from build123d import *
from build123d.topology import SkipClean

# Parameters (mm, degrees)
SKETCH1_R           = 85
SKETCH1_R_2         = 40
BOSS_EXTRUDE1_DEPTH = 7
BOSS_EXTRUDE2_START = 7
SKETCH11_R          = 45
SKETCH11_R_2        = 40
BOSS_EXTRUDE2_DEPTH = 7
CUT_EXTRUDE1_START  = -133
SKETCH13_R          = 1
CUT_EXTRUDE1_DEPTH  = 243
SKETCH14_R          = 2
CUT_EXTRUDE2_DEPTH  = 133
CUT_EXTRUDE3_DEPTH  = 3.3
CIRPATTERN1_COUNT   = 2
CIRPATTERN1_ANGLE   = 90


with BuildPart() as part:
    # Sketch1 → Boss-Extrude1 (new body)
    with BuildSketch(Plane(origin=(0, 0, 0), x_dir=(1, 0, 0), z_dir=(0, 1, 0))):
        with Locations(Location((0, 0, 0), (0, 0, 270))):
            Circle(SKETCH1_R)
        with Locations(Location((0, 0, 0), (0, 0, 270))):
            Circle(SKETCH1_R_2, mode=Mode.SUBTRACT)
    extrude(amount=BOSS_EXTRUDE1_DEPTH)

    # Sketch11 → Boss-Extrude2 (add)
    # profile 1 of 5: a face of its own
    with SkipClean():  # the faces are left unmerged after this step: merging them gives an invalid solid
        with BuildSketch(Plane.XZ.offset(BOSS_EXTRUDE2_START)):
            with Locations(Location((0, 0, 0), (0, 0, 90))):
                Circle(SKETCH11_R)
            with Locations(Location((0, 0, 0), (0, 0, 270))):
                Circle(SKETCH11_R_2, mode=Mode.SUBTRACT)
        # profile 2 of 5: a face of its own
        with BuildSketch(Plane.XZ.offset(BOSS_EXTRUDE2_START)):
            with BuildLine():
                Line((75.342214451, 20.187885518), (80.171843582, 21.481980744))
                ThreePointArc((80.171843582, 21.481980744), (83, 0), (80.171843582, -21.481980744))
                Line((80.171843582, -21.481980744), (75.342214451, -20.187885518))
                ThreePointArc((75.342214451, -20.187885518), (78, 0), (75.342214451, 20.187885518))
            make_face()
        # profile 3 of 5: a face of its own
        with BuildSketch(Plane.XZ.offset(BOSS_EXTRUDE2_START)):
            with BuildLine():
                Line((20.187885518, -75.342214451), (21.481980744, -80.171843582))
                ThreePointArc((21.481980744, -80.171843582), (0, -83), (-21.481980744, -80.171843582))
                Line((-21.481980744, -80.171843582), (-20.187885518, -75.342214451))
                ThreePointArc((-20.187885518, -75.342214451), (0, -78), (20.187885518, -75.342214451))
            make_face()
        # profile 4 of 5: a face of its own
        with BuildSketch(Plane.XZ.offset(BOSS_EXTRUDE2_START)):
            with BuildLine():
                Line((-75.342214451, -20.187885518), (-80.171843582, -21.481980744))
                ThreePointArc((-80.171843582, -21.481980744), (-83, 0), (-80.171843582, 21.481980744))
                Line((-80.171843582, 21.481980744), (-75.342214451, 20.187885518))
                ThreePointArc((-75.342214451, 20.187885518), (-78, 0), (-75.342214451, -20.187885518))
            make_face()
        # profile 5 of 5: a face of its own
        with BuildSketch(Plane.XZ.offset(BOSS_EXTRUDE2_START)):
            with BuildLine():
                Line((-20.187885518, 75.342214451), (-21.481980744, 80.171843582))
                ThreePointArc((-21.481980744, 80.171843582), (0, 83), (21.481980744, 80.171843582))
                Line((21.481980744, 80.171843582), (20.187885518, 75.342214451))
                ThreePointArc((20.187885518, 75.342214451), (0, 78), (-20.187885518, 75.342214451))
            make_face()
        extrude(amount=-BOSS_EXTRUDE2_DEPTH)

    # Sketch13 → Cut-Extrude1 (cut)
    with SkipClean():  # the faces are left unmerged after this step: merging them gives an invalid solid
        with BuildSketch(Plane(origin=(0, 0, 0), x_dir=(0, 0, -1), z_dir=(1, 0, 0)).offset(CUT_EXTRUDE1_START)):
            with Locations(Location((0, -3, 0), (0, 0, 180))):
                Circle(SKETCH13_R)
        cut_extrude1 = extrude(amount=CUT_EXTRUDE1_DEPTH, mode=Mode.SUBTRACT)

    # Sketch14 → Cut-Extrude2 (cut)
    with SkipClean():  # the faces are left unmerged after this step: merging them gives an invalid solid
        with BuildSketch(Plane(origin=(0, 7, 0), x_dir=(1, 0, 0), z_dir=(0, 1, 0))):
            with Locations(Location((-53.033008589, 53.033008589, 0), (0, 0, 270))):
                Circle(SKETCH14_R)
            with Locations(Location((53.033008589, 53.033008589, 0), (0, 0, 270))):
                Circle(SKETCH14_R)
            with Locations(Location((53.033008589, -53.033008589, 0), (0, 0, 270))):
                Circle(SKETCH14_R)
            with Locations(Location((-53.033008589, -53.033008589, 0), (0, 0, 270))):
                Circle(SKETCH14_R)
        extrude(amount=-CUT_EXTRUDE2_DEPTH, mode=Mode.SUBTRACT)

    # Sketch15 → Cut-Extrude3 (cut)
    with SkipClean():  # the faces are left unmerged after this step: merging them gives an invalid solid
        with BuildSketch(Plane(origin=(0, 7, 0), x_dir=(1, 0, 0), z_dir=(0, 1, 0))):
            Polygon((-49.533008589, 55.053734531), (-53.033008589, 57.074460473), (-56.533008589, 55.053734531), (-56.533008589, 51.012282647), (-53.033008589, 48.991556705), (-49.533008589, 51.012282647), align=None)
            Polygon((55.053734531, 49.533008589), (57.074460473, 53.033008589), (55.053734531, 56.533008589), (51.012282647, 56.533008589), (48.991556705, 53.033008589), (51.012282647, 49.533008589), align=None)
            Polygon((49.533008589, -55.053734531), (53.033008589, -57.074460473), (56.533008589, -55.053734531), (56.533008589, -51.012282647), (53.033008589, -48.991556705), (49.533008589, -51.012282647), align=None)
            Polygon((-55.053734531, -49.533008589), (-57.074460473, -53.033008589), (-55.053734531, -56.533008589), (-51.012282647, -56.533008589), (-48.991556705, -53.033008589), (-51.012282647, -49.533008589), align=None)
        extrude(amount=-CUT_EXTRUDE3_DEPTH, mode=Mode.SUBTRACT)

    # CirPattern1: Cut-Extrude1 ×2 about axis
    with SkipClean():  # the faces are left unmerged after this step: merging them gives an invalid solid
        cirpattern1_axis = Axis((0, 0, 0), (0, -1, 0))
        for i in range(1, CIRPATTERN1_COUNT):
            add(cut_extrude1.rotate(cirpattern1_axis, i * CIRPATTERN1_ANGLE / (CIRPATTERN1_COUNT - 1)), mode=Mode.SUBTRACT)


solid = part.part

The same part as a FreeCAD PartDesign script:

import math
import FreeCAD as App
import Part
import Sketcher
Q = App.Units.Quantity


def add_polygon(sketch, points):
    """Adds a closed chain of lines whose ends are joined by coincident constraints."""
    first, n = sketch.GeometryCount, len(points)
    for a, b in zip(points, points[1:] + points[:1]):
        sketch.addGeometry(Part.LineSegment(App.Vector(*a, 0), App.Vector(*b, 0)), False)
    for i in range(n):
        sketch.addConstraint(Sketcher.Constraint("Coincident", first + i, 2, first + (i + 1) % n, 1))

doc = App.newDocument("Part")
body = doc.addObject("PartDesign::Body", "Body")

# Sketch on XZ plane
sketch1 = doc.addObject("Sketcher::SketchObject", "Sketch")
body.addObject(sketch1)
sketch1.AttachmentSupport = (doc.XZ_Plane, [""])
sketch1.MapMode = "FlatFace"
sketch1.addGeometry([
    Part.Circle(App.Vector(0, 0, 0), App.Vector(0, 0, 1), 85),
    Part.Circle(App.Vector(0, 0, 0), App.Vector(0, 0, 1), 40),
], False)
sketch1.addConstraint([
    Sketcher.Constraint("Coincident", 0, 3, -1, 1),
    Sketcher.Constraint("Coincident", 1, 3, -1, 1),
    Sketcher.Constraint("Diameter", 0, 170.0),
    Sketcher.Constraint("Diameter", 1, 80.0),
])
pad1 = doc.addObject("PartDesign::Pad", "Pad")
body.addObject(pad1)
pad1.Profile = sketch1
pad1.Length = 7
pad1.Reversed = True

# Sketch on XZ plane
sketch2 = doc.addObject("Sketcher::SketchObject", "Sketch001")
body.addObject(sketch2)
sketch2.AttachmentSupport = (doc.XZ_Plane, [""])
sketch2.MapMode = "FlatFace"
sketch2.AttachmentOffset = App.Placement(App.Vector(0, 0, 7), App.Rotation())
sketch2.addGeometry([
    Part.Circle(App.Vector(0, 0, 0), App.Vector(0, 0, 1), 45),  # 0
    Part.Circle(App.Vector(0, 0, 0), App.Vector(0, 0, 1), 40),  # 1
    Part.LineSegment(App.Vector(80.2, 21.5, 0), App.Vector(75.3, 20.2, 0)),  # 2
    Part.ArcOfCircle(Part.Circle(App.Vector(0, 0, 0), App.Vector(0, 0, 1), 78), math.radians(-15), math.radians(15)),  # 3
    Part.LineSegment(App.Vector(75.3, -20.2, 0), App.Vector(80.2, -21.5, 0)),  # 4
    Part.ArcOfCircle(Part.Circle(App.Vector(0, 0, 0), App.Vector(0, 0, 1), 83), math.radians(-15), math.radians(15)),  # 5
    Part.LineSegment(App.Vector(21.5, -80.2, 0), App.Vector(20.2, -75.3, 0)),  # 6
    Part.ArcOfCircle(Part.Circle(App.Vector(0, 0, 0), App.Vector(0, 0, 1), 78), math.radians(-105), math.radians(-75)),  # 7
    Part.LineSegment(App.Vector(-20.2, -75.3, 0), App.Vector(-21.5, -80.2, 0)),  # 8
    Part.ArcOfCircle(Part.Circle(App.Vector(0, 0, 0), App.Vector(0, 0, 1), 83), math.radians(-105), math.radians(-75)),  # 9
    Part.LineSegment(App.Vector(-80.2, -21.5, 0), App.Vector(-75.3, -20.2, 0)),  # 10
    Part.ArcOfCircle(Part.Circle(App.Vector(0, 0, 0), App.Vector(0, 0, 1), 78), math.radians(165), math.radians(195)),  # 11
    Part.LineSegment(App.Vector(-75.3, 20.2, 0), App.Vector(-80.2, 21.5, 0)),  # 12
    Part.ArcOfCircle(Part.Circle(App.Vector(0, 0, 0), App.Vector(0, 0, 1), 83), math.radians(165), math.radians(195)),  # 13
    Part.LineSegment(App.Vector(-21.5, 80.2, 0), App.Vector(-20.2, 75.3, 0)),  # 14
    Part.ArcOfCircle(Part.Circle(App.Vector(0, 0, 0), App.Vector(0, 0, 1), 78), math.radians(75), math.radians(105)),  # 15
    Part.LineSegment(App.Vector(20.2, 75.3, 0), App.Vector(21.5, 80.2, 0)),  # 16
    Part.ArcOfCircle(Part.Circle(App.Vector(0, 0, 0), App.Vector(0, 0, 1), 83), math.radians(75), math.radians(105)),  # 17
], False)
sketch2.addConstraint([
    Sketcher.Constraint("Coincident", 2, 2, 3, 2),
    Sketcher.Constraint("Coincident", 3, 1, 4, 1),
    Sketcher.Constraint("Coincident", 4, 2, 5, 1),
    Sketcher.Constraint("Coincident", 5, 2, 2, 1),
    Sketcher.Constraint("Coincident", 6, 2, 7, 2),
    Sketcher.Constraint("Coincident", 7, 1, 8, 1),
    Sketcher.Constraint("Coincident", 8, 2, 9, 1),
    Sketcher.Constraint("Coincident", 9, 2, 6, 1),
    Sketcher.Constraint("Coincident", 10, 2, 11, 2),
    Sketcher.Constraint("Coincident", 11, 1, 12, 1),
    Sketcher.Constraint("Coincident", 12, 2, 13, 1),
    Sketcher.Constraint("Coincident", 13, 2, 10, 1),
    Sketcher.Constraint("Coincident", 14, 2, 15, 2),
    Sketcher.Constraint("Coincident", 15, 1, 16, 1),
    Sketcher.Constraint("Coincident", 16, 2, 17, 1),
    Sketcher.Constraint("Coincident", 17, 2, 14, 1),
    Sketcher.Constraint("Coincident", 0, 3, -1, 1),
    Sketcher.Constraint("Coincident", 1, 3, -1, 1),
    Sketcher.Constraint("Coincident", 3, 3, -1, 1),
    Sketcher.Constraint("Coincident", 5, 3, -1, 1),
    Sketcher.Constraint("Coincident", 7, 3, -1, 1),
    Sketcher.Constraint("Coincident", 9, 3, -1, 1),
    Sketcher.Constraint("Coincident", 11, 3, -1, 1),
    Sketcher.Constraint("Coincident", 13, 3, -1, 1),
    Sketcher.Constraint("Coincident", 15, 3, -1, 1),
    Sketcher.Constraint("Coincident", 17, 3, -1, 1),
    Sketcher.Constraint("Equal", 3, 7),
    Sketcher.Constraint("Equal", 5, 9),
    Sketcher.Constraint("Equal", 7, 11),
    Sketcher.Constraint("Equal", 9, 13),
    Sketcher.Constraint("Equal", 11, 15),
    Sketcher.Constraint("Equal", 13, 17),
    Sketcher.Constraint("Perpendicular", 2, 6),
    Sketcher.Constraint("Perpendicular", 4, 8),
    Sketcher.Constraint("Perpendicular", 6, 10),
    Sketcher.Constraint("Perpendicular", 8, 12),
    Sketcher.Constraint("Perpendicular", 10, 14),
    Sketcher.Constraint("Perpendicular", 12, 16),
    Sketcher.Constraint("Horizontal", 6, 2, 7, 1),
    Sketcher.Constraint("Horizontal", 8, 2, 9, 2),
    Sketcher.Constraint("Horizontal", 3, 1, 10, 2),
    Sketcher.Constraint("Horizontal", 2, 2, 11, 1),
    Sketcher.Constraint("Horizontal", 14, 2, 15, 1),
    Sketcher.Constraint("Vertical", 2, 2, 3, 1),
    Sketcher.Constraint("Vertical", 7, 1, 14, 2),
    Sketcher.Constraint("Diameter", 0, 90.0),
    Sketcher.Constraint("Diameter", 1, 80.0),
    Sketcher.Constraint("Radius", 3, 78.0),
    Sketcher.Constraint("Radius", 5, 83.0),
    Sketcher.Constraint("Angle", 2, Q("-165 deg")),
    Sketcher.Constraint("DistanceY", 4, 2, -1, 1, 21.481981),
    Sketcher.Constraint("DistanceX", 8, 2, -1, 1, 21.481981),
])
pad2 = doc.addObject("PartDesign::Pad", "Pad001")
body.addObject(pad2)
pad2.Profile = sketch2
pad2.Length = 7
pad2.Reversed = True

# Sketch on YZ plane
sketch3 = doc.addObject("Sketcher::SketchObject", "Sketch002")
body.addObject(sketch3)
sketch3.AttachmentSupport = (doc.YZ_Plane, [""])
sketch3.MapMode = "FlatFace"
sketch3.AttachmentOffset = App.Placement(App.Vector(0, 0, -133), App.Rotation())
sketch3.addGeometry(Part.Circle(App.Vector(-3, 0, 0), App.Vector(0, 0, 1), 1), False)
sketch3.addConstraint([
    Sketcher.Constraint("PointOnObject", 0, 3, -1),
    Sketcher.Constraint("Diameter", 0, 2.0),
    Sketcher.Constraint("DistanceX", 0, 3, -1, 1, 3.0),
])
pocket1 = doc.addObject("PartDesign::Pocket", "Pocket")
body.addObject(pocket1)
pocket1.Profile = sketch3
pocket1.Length = 243
pocket1.Reversed = True

# Sketch on XZ plane
sketch4 = doc.addObject("Sketcher::SketchObject", "Sketch003")
body.addObject(sketch4)
sketch4.AttachmentSupport = (doc.XZ_Plane, [""])
sketch4.MapMode = "FlatFace"
sketch4.AttachmentOffset = App.Placement(App.Vector(0, 0, -7), App.Rotation())
sketch4.addGeometry([
    Part.Circle(App.Vector(-53, -53, 0), App.Vector(0, 0, 1), 2),
    Part.Circle(App.Vector(53, -53, 0), App.Vector(0, 0, 1), 2),
    Part.Circle(App.Vector(53, 53, 0), App.Vector(0, 0, 1), 2),
    Part.Circle(App.Vector(-53, 53, 0), App.Vector(0, 0, 1), 2),
], False)
sketch4.addConstraint([
    Sketcher.Constraint("Equal", 0, 1),
    Sketcher.Constraint("Equal", 1, 2),
    Sketcher.Constraint("Equal", 2, 3),
    Sketcher.Constraint("Symmetric", 0, 3, 2, 3, -1, 1),
    Sketcher.Constraint("Symmetric", 1, 3, 3, 3, -1, 1),
    Sketcher.Constraint("Symmetric", 0, 3, 1, 3, -2),
    Sketcher.Constraint("Diameter", 0, 4.0),
    Sketcher.Constraint("DistanceX", 0, 3, -1, 1, 53.033009),
    Sketcher.Constraint("DistanceY", 0, 3, -1, 1, 53.033009),
])
pocket2 = doc.addObject("PartDesign::Pocket", "Pocket001")
body.addObject(pocket2)
pocket2.Profile = sketch4
pocket2.Length = 133
pocket2.Reversed = True

# Sketch on XZ plane
sketch5 = doc.addObject("Sketcher::SketchObject", "Sketch004")
body.addObject(sketch5)
sketch5.AttachmentSupport = (doc.XZ_Plane, [""])
sketch5.MapMode = "FlatFace"
sketch5.AttachmentOffset = App.Placement(App.Vector(0, 0, -7), App.Rotation())
add_polygon(sketch5, [(-49.5, -55.1), (-53, -57.1), (-56.5, -55.1), (-56.5, -51), (-53, -49), (-49.5, -51)])  # lines 0-5
add_polygon(sketch5, [(55.1, -49.5), (57.1, -53), (55.1, -56.5), (51, -56.5), (49, -53), (51, -49.5)])  # lines 6-11
add_polygon(sketch5, [(49.5, 55.1), (53, 57.1), (56.5, 55.1), (56.5, 51), (53, 49), (49.5, 51)])  # lines 12-17
add_polygon(sketch5, [(-55.1, 49.5), (-57.1, 53), (-55.1, 56.5), (-51, 56.5), (-49, 53), (-51, 49.5)])  # lines 18-23
sketch5.addConstraint([
    Sketcher.Constraint("Vertical", 2),
    Sketcher.Constraint("Vertical", 5),
    Sketcher.Constraint("Horizontal", 8),
    Sketcher.Constraint("Horizontal", 11),
    Sketcher.Constraint("Vertical", 14),
    Sketcher.Constraint("Vertical", 17),
    Sketcher.Constraint("Horizontal", 20),
    Sketcher.Constraint("Horizontal", 23),
    Sketcher.Constraint("Symmetric", 0, 2, 12, 2, -1, 1),
    Sketcher.Constraint("Symmetric", 1, 2, 13, 2, -1, 1),
    Sketcher.Constraint("Symmetric", 3, 2, 15, 2, -1, 1),
    Sketcher.Constraint("Symmetric", 4, 2, 16, 2, -1, 1),
    Sketcher.Constraint("Symmetric", 6, 2, 18, 2, -1, 1),
    Sketcher.Constraint("Symmetric", 7, 2, 19, 2, -1, 1),
    Sketcher.Constraint("Symmetric", 9, 2, 21, 2, -1, 1),
    Sketcher.Constraint("Symmetric", 10, 2, 22, 2, -1, 1),
    Sketcher.Constraint("Parallel", 0, 3),
    Sketcher.Constraint("Parallel", 1, 4),
    Sketcher.Constraint("Perpendicular", 3, 6),
    Sketcher.Constraint("Perpendicular", 4, 7),
    Sketcher.Constraint("Parallel", 6, 9),
    Sketcher.Constraint("Parallel", 7, 10),
    Sketcher.Constraint("Perpendicular", 9, 12),
    Sketcher.Constraint("Parallel", 12, 15),
    Sketcher.Constraint("Perpendicular", 15, 18),
    Sketcher.Constraint("Parallel", 18, 21),
    Sketcher.Constraint("Horizontal", 2, 2, 4, 2),
    Sketcher.Constraint("Horizontal", 1, 2, 5, 2),
    Sketcher.Constraint("Horizontal", 6, 2, 9, 2),
    Sketcher.Constraint("Vertical", 0, 2, 3, 2),
    Sketcher.Constraint("Vertical", 8, 2, 10, 2),
    Sketcher.Constraint("Equal", 23, 2),
    Sketcher.Constraint("Equal", 4, 6),
    Sketcher.Constraint("Angle", 0, Q("-150 deg")),
    Sketcher.Constraint("DistanceX", 2, 2, 4, 2, 7.0),
    Sketcher.Constraint("DistanceX", 8, 2, 8, 1, 4.041452),
    Sketcher.Constraint("DistanceX", 0, 2, -1, 1, 53.033009),
    Sketcher.Constraint("DistanceY", 0, 2, -1, 1, 57.07446),
    Sketcher.Constraint("DistanceX", -1, 1, 6, 2, 57.07446),
    Sketcher.Constraint("DistanceY", 6, 2, -1, 1, 53.033009),
])
pocket3 = doc.addObject("PartDesign::Pocket", "Pocket002")
body.addObject(pocket3)
pocket3.Profile = sketch5
pocket3.Length = 3.3
pocket3.Reversed = True
doc.recompute()

polarpattern = doc.addObject("PartDesign::PolarPattern", "PolarPattern")
body.addObject(polarpattern)
polarpattern.Originals = [pocket1]
polarpattern.Axis = (doc.Y_Axis, [""])
polarpattern.Angle = 90
polarpattern.Occurrences = 2
polarpattern.Reversed = True
body.Tip = polarpattern

doc.recompute()
